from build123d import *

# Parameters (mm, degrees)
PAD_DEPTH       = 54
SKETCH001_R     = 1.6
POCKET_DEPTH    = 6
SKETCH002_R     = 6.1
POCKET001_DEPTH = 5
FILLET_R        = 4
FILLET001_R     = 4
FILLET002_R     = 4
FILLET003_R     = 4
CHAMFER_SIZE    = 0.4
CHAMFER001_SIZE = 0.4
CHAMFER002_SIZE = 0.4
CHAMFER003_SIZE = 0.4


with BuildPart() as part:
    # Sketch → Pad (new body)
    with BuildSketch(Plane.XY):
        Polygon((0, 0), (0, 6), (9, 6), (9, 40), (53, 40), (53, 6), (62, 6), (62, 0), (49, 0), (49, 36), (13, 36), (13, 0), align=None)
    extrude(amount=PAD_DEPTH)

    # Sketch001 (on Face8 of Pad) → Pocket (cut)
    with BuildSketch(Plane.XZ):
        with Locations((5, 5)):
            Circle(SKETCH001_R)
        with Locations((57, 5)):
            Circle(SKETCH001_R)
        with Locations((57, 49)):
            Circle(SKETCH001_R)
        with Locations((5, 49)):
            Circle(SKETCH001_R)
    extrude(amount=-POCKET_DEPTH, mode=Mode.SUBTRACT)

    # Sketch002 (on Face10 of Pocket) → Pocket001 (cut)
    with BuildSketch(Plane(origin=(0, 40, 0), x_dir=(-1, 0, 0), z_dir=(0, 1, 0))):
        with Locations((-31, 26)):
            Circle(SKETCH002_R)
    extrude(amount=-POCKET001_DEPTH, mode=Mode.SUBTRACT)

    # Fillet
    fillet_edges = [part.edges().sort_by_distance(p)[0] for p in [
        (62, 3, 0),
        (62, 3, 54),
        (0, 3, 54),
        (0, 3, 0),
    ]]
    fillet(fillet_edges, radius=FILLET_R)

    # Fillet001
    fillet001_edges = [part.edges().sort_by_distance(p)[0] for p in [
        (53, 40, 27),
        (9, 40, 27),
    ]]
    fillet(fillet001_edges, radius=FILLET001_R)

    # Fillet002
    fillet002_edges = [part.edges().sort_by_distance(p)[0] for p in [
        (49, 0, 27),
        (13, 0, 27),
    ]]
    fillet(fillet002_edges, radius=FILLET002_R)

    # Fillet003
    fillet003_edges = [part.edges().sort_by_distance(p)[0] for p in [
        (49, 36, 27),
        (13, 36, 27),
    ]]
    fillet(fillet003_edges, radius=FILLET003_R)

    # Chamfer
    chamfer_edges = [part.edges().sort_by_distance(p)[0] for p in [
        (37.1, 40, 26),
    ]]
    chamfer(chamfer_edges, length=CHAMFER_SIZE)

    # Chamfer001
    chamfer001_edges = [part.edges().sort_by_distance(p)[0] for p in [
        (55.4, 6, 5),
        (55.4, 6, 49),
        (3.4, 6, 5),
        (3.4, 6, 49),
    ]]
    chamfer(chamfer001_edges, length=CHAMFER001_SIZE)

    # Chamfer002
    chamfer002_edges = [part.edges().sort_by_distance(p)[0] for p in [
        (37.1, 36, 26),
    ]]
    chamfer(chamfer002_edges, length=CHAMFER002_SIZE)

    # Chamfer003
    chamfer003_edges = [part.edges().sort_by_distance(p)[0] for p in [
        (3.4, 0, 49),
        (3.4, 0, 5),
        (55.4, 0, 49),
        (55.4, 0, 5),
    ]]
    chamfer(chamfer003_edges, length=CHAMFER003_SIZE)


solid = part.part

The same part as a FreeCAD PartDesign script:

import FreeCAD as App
import Part
import Sketcher

V = App.Vector
Q = App.Units.Quantity


def edges_at(feature, points):
    """Names of the edges that pass closest to the given points."""
    edges = feature.Shape.Edges
    near = lambda p: min(range(len(edges)), key=lambda i: edges[i].distToShape(Part.Vertex(*p))[0])
    return sorted({f"Edge{near(p) + 1}" for p in points})

doc = App.newDocument("Part")
body = doc.addObject("PartDesign::Body", "Body")

sketch1 = body.newObject("Sketcher::SketchObject", "Sketch")
sketch1.AttachmentSupport = (doc.getObject("XY_Plane"), [""])
sketch1.MapMode = "FlatFace"
sketch1.addGeometry([
    Part.LineSegment(V(0, 6, 0), V(0, 0, 0)),
    Part.LineSegment(V(0, 0, 0), V(13, 0, 0)),
    Part.LineSegment(V(13, 0, 0), V(13, 36, 0)),
    Part.LineSegment(V(13, 36, 0), V(49, 36, 0)),
    Part.LineSegment(V(49, 36, 0), V(49, 0, 0)),
    Part.LineSegment(V(49, 0, 0), V(62, 0, 0)),
    Part.LineSegment(V(62, 0, 0), V(62, 6, 0)),
    Part.LineSegment(V(62, 6, 0), V(53, 6, 0)),
    Part.LineSegment(V(53, 6, 0), V(53, 40, 0)),
    Part.LineSegment(V(53, 40, 0), V(9, 40, 0)),
    Part.LineSegment(V(9, 40, 0), V(9, 6, 0)),
    Part.LineSegment(V(9, 6, 0), V(0, 6, 0)),
], False)
sketch1.addConstraint([
    Sketcher.Constraint("Coincident", 0, 2, 1, 1),
    Sketcher.Constraint("Coincident", 1, 2, 2, 1),
    Sketcher.Constraint("Coincident", 2, 2, 3, 1),
    Sketcher.Constraint("Coincident", 3, 2, 4, 1),
    Sketcher.Constraint("Coincident", 4, 2, 5, 1),
    Sketcher.Constraint("Coincident", 5, 2, 6, 1),
    Sketcher.Constraint("Coincident", 6, 2, 7, 1),
    Sketcher.Constraint("Coincident", 7, 2, 8, 1),
    Sketcher.Constraint("Coincident", 8, 2, 9, 1),
    Sketcher.Constraint("Coincident", 9, 2, 10, 1),
    Sketcher.Constraint("Coincident", 10, 2, 11, 1),
    Sketcher.Constraint("Coincident", 11, 2, 0, 1),
    Sketcher.Constraint("Vertical", 0),
    Sketcher.Constraint("Horizontal", 1),
    Sketcher.Constraint("Vertical", 2),
    Sketcher.Constraint("Horizontal", 3),
    Sketcher.Constraint("Vertical", 4),
    Sketcher.Constraint("Horizontal", 5),
    Sketcher.Constraint("Vertical", 6),
    Sketcher.Constraint("Horizontal", 7),
    Sketcher.Constraint("Vertical", 8),
    Sketcher.Constraint("Horizontal", 9),
    Sketcher.Constraint("Vertical", 10),
    Sketcher.Constraint("Horizontal", 11),
    Sketcher.Constraint("Coincident", 0, 2, -1, 1),
    Sketcher.Constraint("PointOnObject", 4, 2, -1),
    Sketcher.Constraint("Horizontal", 7, 2, 10, 2),
    Sketcher.Constraint("Equal", 1, 5),
    Sketcher.Constraint("Equal", 7, 11),
    Sketcher.Constraint("Equal", 3, 2),
    Sketcher.Constraint("DistanceX", 1, 1, 1, 2, Q("13 mm")),
    Sketcher.Constraint("DistanceX", 3, 1, 3, 2, Q("36 mm")),
    Sketcher.Constraint("DistanceX", 7, 2, 7, 1, Q("9 mm")),
    Sketcher.Constraint("DistanceY", 0, 2, 0, 1, Q("6 mm")),
    Sketcher.Constraint("DistanceY", 8, 1, 8, 2, Q("34 mm")),
])
pad1 = body.newObject("PartDesign::Pad", "Pad")
pad1.Profile = sketch1
pad1.Length = 54

sketch2 = body.newObject("Sketcher::SketchObject", "Sketch001")
sketch2.AttachmentSupport = (doc.getObject("XZ_Plane"), [""])
sketch2.MapMode = "FlatFace"
sketch2.addGeometry([
    Part.Circle(V(5, 5, 0), V(0, 0, 1), 1.6),
    Part.Circle(V(57, 5, 0), V(0, 0, 1), 1.6),
    Part.Circle(V(57, 49, 0), V(0, 0, 1), 1.6),
    Part.Circle(V(5, 49, 0), V(0, 0, 1), 1.6),
], False)
sketch2.addConstraint([
    Sketcher.Constraint("Equal", 0, 1),
    Sketcher.Constraint("Equal", 1, 2),
    Sketcher.Constraint("Equal", 2, 3),
    Sketcher.Constraint("Horizontal", 0, 3, 1, 3),
    Sketcher.Constraint("Horizontal", 2, 3, 3, 3),
    Sketcher.Constraint("Vertical", 1, 3, 2, 3),
    Sketcher.Constraint("Vertical", 0, 3, 3, 3),
    Sketcher.Constraint("Diameter", 0, Q("3.2 mm")),
    Sketcher.Constraint("DistanceX", -1, 1, 0, 3, Q("5 mm")),
    Sketcher.Constraint("DistanceY", -1, 1, 0, 3, Q("5 mm")),
    Sketcher.Constraint("DistanceX", -1, 1, 1, 3, Q("57 mm")),
    Sketcher.Constraint("DistanceY", -1, 1, 2, 3, Q("49 mm")),
])
pocket1 = body.newObject("PartDesign::Pocket", "Pocket")
pocket1.Profile = sketch2
pocket1.Length = 6

sketch3 = body.newObject("Sketcher::SketchObject", "Sketch002")
sketch3.AttachmentSupport = (doc.getObject("XZ_Plane"), [""])
sketch3.MapMode = "FlatFace"
sketch3.AttachmentOffset = App.Placement(V(0, 0, -40), App.Rotation())
sketch3.addGeometry(Part.Circle(V(31, 26, 0), V(0, 0, 1), 6), False)
sketch3.addConstraint([
    Sketcher.Constraint("Diameter", 0, Q("12.2 mm")),
    Sketcher.Constraint("DistanceX", -1, 1, 0, 3, Q("31 mm")),
    Sketcher.Constraint("DistanceY", -1, 1, 0, 3, Q("26 mm")),
])
pocket2 = body.newObject("PartDesign::Pocket", "Pocket001")
pocket2.Profile = sketch3
pocket2.Length = 5
pocket2.Reversed = True
doc.recompute()

fillet = body.newObject("PartDesign::Fillet", "Fillet")
fillet.Base = (pocket2, edges_at(pocket2, [
    (62, 3, 0),
    (62, 3, 54),
    (0, 3, 54),
    (0, 3, 0),
]))
fillet.Radius = 4
doc.recompute()

fillet2 = body.newObject("PartDesign::Fillet", "Fillet001")
fillet2.Base = (fillet, edges_at(fillet, [(53, 40, 27), (9, 40, 27)]))
fillet2.Radius = 4
doc.recompute()

fillet3 = body.newObject("PartDesign::Fillet", "Fillet002")
fillet3.Base = (fillet2, edges_at(fillet2, [(49, 0, 27), (13, 0, 27)]))
fillet3.Radius = 4
doc.recompute()

fillet4 = body.newObject("PartDesign::Fillet", "Fillet003")
fillet4.Base = (fillet3, edges_at(fillet3, [(49, 36, 27), (13, 36, 27)]))
fillet4.Radius = 4
doc.recompute()

chamfer = body.newObject("PartDesign::Chamfer", "Chamfer")
chamfer.Base = (fillet4, edges_at(fillet4, [(37.1, 40, 26)]))
chamfer.Size = 0.4
doc.recompute()

chamfer2 = body.newObject("PartDesign::Chamfer", "Chamfer001")
chamfer2.Base = (chamfer, edges_at(chamfer, [
    (55.4, 6, 5),
    (55.4, 6, 49),
    (3.4, 6, 5),
    (3.4, 6, 49),
]))
chamfer2.Size = 0.4
doc.recompute()

chamfer3 = body.newObject("PartDesign::Chamfer", "Chamfer002")
chamfer3.Base = (chamfer2, edges_at(chamfer2, [(37.1, 36, 26)]))
chamfer3.Size = 0.4
doc.recompute()

chamfer4 = body.newObject("PartDesign::Chamfer", "Chamfer003")
chamfer4.Base = (chamfer3, edges_at(chamfer3, [
    (3.4, 0, 49),
    (3.4, 0, 5),
    (55.4, 0, 49),
    (55.4, 0, 5),
]))
chamfer4.Size = 0.4

doc.recompute()
